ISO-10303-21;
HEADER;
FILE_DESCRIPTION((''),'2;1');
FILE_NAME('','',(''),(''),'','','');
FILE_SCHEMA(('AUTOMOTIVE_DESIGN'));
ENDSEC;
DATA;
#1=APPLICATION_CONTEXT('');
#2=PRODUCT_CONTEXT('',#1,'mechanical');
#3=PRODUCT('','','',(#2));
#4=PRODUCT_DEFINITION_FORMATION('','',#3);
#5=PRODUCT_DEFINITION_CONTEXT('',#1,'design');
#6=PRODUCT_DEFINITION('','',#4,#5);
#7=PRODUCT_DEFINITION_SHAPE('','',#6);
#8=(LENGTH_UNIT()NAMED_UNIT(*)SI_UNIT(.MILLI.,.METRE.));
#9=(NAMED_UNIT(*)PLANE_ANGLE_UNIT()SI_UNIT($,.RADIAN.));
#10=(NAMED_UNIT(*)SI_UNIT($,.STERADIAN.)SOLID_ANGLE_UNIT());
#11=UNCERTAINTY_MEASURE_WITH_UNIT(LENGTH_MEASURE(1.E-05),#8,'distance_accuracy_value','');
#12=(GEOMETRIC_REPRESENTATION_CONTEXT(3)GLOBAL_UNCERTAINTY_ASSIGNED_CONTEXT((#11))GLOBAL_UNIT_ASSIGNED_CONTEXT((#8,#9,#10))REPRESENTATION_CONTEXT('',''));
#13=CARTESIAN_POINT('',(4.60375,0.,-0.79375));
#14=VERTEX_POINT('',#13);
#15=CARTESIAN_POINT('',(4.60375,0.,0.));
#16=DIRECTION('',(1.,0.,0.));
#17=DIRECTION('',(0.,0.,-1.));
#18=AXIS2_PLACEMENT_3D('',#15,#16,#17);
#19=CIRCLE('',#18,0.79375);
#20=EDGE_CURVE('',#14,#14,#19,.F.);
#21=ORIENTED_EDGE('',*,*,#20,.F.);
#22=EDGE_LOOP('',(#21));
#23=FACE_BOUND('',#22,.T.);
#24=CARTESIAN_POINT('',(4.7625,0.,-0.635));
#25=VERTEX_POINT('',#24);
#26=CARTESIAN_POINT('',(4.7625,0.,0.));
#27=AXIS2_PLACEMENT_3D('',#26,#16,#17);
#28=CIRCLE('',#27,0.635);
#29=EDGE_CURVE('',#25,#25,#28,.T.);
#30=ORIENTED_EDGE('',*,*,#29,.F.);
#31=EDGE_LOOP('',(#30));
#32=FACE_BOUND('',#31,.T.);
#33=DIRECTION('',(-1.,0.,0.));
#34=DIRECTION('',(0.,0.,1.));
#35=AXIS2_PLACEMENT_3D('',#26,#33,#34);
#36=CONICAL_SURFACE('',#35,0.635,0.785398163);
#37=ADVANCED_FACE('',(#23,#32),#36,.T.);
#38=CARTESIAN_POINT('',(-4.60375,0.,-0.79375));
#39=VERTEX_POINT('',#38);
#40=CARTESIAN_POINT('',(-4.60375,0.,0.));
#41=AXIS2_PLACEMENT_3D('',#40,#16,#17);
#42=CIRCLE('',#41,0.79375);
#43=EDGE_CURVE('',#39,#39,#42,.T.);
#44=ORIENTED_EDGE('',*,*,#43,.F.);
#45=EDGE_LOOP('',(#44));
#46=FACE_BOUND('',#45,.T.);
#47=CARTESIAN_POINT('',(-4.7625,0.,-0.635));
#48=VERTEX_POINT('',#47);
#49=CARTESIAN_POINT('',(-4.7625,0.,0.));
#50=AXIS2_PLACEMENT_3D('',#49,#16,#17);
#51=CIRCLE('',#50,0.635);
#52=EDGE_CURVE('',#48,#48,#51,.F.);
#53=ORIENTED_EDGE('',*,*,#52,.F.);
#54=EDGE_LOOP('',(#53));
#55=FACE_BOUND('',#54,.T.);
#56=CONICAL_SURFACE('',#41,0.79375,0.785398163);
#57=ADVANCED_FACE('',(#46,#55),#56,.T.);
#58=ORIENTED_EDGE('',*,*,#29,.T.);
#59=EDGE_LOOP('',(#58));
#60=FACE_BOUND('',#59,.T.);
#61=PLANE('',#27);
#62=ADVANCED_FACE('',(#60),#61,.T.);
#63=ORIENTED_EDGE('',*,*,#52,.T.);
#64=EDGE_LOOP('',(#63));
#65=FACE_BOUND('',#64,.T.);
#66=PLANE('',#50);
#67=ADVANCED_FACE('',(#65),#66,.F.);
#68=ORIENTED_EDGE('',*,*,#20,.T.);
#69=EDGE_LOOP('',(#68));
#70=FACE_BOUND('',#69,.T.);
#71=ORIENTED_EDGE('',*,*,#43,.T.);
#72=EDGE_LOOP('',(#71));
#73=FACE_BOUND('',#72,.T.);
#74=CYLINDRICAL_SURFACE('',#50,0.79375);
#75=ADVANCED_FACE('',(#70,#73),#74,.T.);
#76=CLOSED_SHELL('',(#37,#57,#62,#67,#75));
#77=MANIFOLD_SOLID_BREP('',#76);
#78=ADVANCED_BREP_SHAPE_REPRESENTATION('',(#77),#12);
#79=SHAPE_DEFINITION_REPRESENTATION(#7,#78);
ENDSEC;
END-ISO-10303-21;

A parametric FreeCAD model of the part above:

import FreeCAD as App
import Part
import Sketcher

V = App.Vector
Q = App.Units.Quantity


def edges_at(feature, points):
    """Names of the edges that pass closest to the given points."""
    edges = feature.Shape.Edges
    near = lambda p: min(range(len(edges)), key=lambda i: edges[i].distToShape(Part.Vertex(*p))[0])
    return sorted({f"Edge{near(p) + 1}" for p in points})

doc = App.newDocument("Part")
body = doc.addObject("PartDesign::Body", "Body")

# Sketch on YZ plane
sketch1 = body.newObject("Sketcher::SketchObject", "Sketch")
sketch1.AttachmentSupport = (doc.getObject("YZ_Plane"), [""])
sketch1.MapMode = "FlatFace"
sketch1.addGeometry(Part.Circle(V(0, 0, 0), V(0, 0, 1), 0.8), False)
sketch1.addConstraint([
    Sketcher.Constraint("Coincident", 0, 3, -1, 1),
    Sketcher.Constraint("Diameter", 0, Q("0.0625 in")),
])
pad1 = body.newObject("PartDesign::Pad", "Pad")
pad1.Profile = sketch1
pad1.Type = "TwoLengths"
pad1.Length = Q("0.1875 in")
pad1.Length2 = Q("0.1875 in")
doc.recompute()

chamfer = body.newObject("PartDesign::Chamfer", "Chamfer")
chamfer.Base = (pad1, edges_at(pad1, [(-4.763, 0, 0.794), (4.763, 0, 0.794)]))
chamfer.Size = 0.15875

doc.recompute()
